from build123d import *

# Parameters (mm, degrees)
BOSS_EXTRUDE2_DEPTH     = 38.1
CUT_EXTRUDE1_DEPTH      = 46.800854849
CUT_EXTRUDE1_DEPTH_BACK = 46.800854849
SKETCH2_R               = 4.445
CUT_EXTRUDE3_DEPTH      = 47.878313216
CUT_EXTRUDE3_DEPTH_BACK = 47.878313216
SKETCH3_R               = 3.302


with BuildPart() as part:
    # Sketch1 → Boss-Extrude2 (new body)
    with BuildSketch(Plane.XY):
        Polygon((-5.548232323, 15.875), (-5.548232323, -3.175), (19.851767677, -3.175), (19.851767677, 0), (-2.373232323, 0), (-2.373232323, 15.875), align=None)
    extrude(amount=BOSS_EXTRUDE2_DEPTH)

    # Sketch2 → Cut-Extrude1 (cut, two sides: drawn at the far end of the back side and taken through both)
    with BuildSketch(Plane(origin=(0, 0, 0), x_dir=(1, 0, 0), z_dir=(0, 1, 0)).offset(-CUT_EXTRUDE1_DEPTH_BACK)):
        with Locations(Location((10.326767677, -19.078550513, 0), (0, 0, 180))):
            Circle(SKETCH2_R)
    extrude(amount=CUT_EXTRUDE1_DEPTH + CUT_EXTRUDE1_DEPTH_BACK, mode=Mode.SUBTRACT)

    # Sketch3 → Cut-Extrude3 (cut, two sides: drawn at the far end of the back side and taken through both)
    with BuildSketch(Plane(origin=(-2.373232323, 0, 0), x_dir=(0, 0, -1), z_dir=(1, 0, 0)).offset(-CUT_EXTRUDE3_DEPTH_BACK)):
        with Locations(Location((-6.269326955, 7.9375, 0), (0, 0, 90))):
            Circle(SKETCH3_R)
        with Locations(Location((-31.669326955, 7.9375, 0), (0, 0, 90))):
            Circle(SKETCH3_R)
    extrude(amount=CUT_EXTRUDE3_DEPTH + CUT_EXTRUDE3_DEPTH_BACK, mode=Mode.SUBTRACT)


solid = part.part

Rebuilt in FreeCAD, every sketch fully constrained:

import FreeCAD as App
import Part
import Sketcher

V = App.Vector
Q = App.Units.Quantity


def add_polygon(sketch, points):
    """Adds a closed chain of lines whose ends are joined by coincident constraints."""
    first, n = sketch.GeometryCount, len(points)
    for a, b in zip(points, points[1:] + points[:1]):
        sketch.addGeometry(Part.LineSegment(App.Vector(*a, 0), App.Vector(*b, 0)), False)
    for i in range(n):
        sketch.addConstraint(Sketcher.Constraint("Coincident", first + i, 2, first + (i + 1) % n, 1))

doc = App.newDocument("Part")
params = doc.addObject("Spreadsheet::Sheet", "Params")
for row, (alias, value) in enumerate([
    ("sketch1_width", "1 in"),
    ("sketch1_height", "0.75 in"),
    ("sketch1_width2", "0.875 in"),
    ("pad1_length", "1.5 in"),
    ("sketch2_diameter", "0.35 in"),
    ("sketch3_diameter", "0.26 in"),
], start=1):
    params.set(f"A{row}", alias)
    params.set(f"B{row}", "=" + value)
    params.setAlias(f"B{row}", alias)

body = doc.addObject("PartDesign::Body", "Body")

# Sketch on XY plane
sketch1 = body.newObject("Sketcher::SketchObject", "Sketch")
sketch1.AttachmentSupport = (doc.getObject("XY_Plane"), [""])
sketch1.MapMode = "FlatFace"
add_polygon(sketch1, [(-5.5, 15.9), (-5.5, -3.2), (19.9, -3.2), (19.9, 0), (-2.4, 0), (-2.4, 15.9)])  # lines 0-5
sketch1.addConstraint([
    Sketcher.Constraint("Vertical", 0),
    Sketcher.Constraint("Horizontal", 1),
    Sketcher.Constraint("Vertical", 2),
    Sketcher.Constraint("Horizontal", 3),
    Sketcher.Constraint("Vertical", 4),
    Sketcher.Constraint("Horizontal", 5),
    Sketcher.Constraint("PointOnObject", 2, 2, -1),
    Sketcher.Constraint("Equal", 5, 2),
    Sketcher.Constraint("DistanceX", 1, 1, 1, 2, Q("1 in")),
    Sketcher.Constraint("DistanceY", 0, 2, 0, 1, Q("0.75 in")),
    Sketcher.Constraint("DistanceX", 3, 2, 3, 1, Q("0.875 in")),
    Sketcher.Constraint("DistanceX", 0, 2, -1, 1, 5.548232),
])
sketch1.setExpression("Constraints[14]", "Params.sketch1_width")
sketch1.setExpression("Constraints[15]", "Params.sketch1_height")
sketch1.setExpression("Constraints[16]", "Params.sketch1_width2")
pad1 = body.newObject("PartDesign::Pad", "Pad")
pad1.Profile = sketch1
pad1.setExpression("Length", "Params.pad1_length")

# Sketch on XZ plane
sketch2 = body.newObject("Sketcher::SketchObject", "Sketch001")
sketch2.AttachmentSupport = (doc.getObject("XZ_Plane"), [""])
sketch2.MapMode = "FlatFace"
sketch2.addGeometry(Part.Circle(V(10.3, 19.1, 0), V(0, 0, 1), 4.4), False)
sketch2.addConstraint([
    Sketcher.Constraint("Diameter", 0, Q("0.35 in")),
    Sketcher.Constraint("DistanceY", -1, 1, 0, 3, 19.078551),
    Sketcher.Constraint("DistanceX", -1, 1, 0, 3, 10.326768),
])
sketch2.setExpression("Constraints[0]", "Params.sketch2_diameter")
pocket1 = body.newObject("PartDesign::Pocket", "Pocket")
pocket1.Profile = sketch2
pocket1.Type = "ThroughAll"
pocket1.Midplane = True

# Sketch on YZ plane
sketch3 = body.newObject("Sketcher::SketchObject", "Sketch002")
sketch3.AttachmentSupport = (doc.getObject("YZ_Plane"), [""])
sketch3.MapMode = "FlatFace"
sketch3.AttachmentOffset = App.Placement(V(0, 0, -2.373232), App.Rotation())
sketch3.addGeometry([
    Part.Circle(V(7.9, 6.3, 0), V(0, 0, 1), 3.3),
    Part.Circle(V(7.9, 31.7, 0), V(0, 0, 1), 3.3),
], False)
sketch3.addConstraint([
    Sketcher.Constraint("Equal", 0, 1),
    Sketcher.Constraint("Vertical", 0, 3, 1, 3),
    Sketcher.Constraint("Diameter", 0, Q("0.26 in")),
    Sketcher.Constraint("DistanceY", 0, 3, 1, 3, Q("1 in")),
    Sketcher.Constraint("DistanceX", -1, 1, 0, 3, Q("0.3125 in")),
    Sketcher.Constraint("DistanceY", -1, 1, 0, 3, 6.269327),
])
sketch3.setExpression("Constraints[2]", "Params.sketch3_diameter")
pocket2 = body.newObject("PartDesign::Pocket", "Pocket001")
pocket2.Profile = sketch3
pocket2.Type = "ThroughAll"
pocket2.Midplane = True

doc.recompute()
